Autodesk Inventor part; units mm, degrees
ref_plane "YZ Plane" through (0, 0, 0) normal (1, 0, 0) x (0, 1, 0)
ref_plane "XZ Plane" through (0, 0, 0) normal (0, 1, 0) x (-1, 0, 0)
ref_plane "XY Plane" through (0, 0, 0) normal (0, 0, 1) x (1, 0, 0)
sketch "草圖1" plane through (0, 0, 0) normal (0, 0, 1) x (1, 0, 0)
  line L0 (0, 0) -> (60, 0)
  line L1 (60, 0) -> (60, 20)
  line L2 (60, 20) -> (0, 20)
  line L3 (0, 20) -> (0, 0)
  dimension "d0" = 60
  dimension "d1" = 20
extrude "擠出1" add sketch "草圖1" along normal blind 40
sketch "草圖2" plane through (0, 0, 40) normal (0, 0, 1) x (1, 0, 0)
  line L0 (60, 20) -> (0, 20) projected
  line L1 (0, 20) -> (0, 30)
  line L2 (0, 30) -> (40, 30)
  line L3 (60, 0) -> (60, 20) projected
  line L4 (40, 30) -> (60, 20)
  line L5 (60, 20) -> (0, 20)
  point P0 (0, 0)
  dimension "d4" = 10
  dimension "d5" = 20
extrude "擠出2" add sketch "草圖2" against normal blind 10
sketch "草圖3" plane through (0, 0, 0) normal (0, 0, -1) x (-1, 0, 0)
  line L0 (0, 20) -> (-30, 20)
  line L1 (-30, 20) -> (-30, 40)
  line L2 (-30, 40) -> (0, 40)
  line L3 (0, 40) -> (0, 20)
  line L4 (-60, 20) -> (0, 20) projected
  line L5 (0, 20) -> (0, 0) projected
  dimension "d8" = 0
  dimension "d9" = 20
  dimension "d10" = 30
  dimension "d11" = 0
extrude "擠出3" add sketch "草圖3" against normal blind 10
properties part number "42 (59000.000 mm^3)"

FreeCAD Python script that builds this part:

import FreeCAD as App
import Part
import Sketcher
from FreeCAD import Vector


def add_polygon(sketch, points):
    """Adds a closed chain of lines whose ends are joined by coincident constraints."""
    first, n = sketch.GeometryCount, len(points)
    for a, b in zip(points, points[1:] + points[:1]):
        sketch.addGeometry(Part.LineSegment(App.Vector(*a, 0), App.Vector(*b, 0)), False)
    for i in range(n):
        sketch.addConstraint(Sketcher.Constraint("Coincident", first + i, 2, first + (i + 1) % n, 1))

doc = App.newDocument("Part")
params = doc.addObject("Spreadsheet::Sheet", "Params")
for row, (alias, value) in enumerate([
    ("sketch1_width", "60 mm"),
    ("sketch1_height", "20 mm"),
    ("pad1_length", "40 mm"),
    ("sketch2_height", "10 mm"),
    ("sketch2_width", "60 mm"),
    ("pad2_length", "10 mm"),
    ("sketch3_width", "30 mm"),
    ("sketch3_height", "20 mm"),
    ("pad3_length", "10 mm"),
], start=1):
    params.set(f"A{row}", alias)
    params.set(f"B{row}", "=" + value)
    params.setAlias(f"B{row}", alias)

body = doc.addObject("PartDesign::Body", "Body")

sketch1 = body.newObject("Sketcher::SketchObject", "Sketch")
sketch1.AttachmentSupport = (doc.getObject("XY_Plane"), [""])
sketch1.MapMode = "FlatFace"
add_polygon(sketch1, [(0, 20), (0, 0), (60, 0), (60, 20)])
sketch1.addConstraint([
    Sketcher.Constraint("Vertical", 0),
    Sketcher.Constraint("Horizontal", 1),
    Sketcher.Constraint("Vertical", 2),
    Sketcher.Constraint("Horizontal", 3),
    Sketcher.Constraint("Coincident", 0, 2, -1, 1),
    Sketcher.Constraint("DistanceX", 1, 1, 1, 2, 60.0),
    Sketcher.Constraint("DistanceY", 0, 2, 0, 1, 20.0),
])
sketch1.setExpression("Constraints[9]", "Params.sketch1_width")
sketch1.setExpression("Constraints[10]", "Params.sketch1_height")
pad1 = body.newObject("PartDesign::Pad", "Pad")
pad1.Profile = sketch1
pad1.setExpression("Length", "Params.pad1_length")

sketch2 = body.newObject("Sketcher::SketchObject", "Sketch001")
sketch2.AttachmentSupport = (doc.getObject("XY_Plane"), [""])
sketch2.MapMode = "FlatFace"
sketch2.AttachmentOffset = App.Placement(Vector(0, 0, 40), App.Rotation())
add_polygon(sketch2, [(0, 20), (60, 20), (40, 30), (0, 30)])
sketch2.addConstraint([
    Sketcher.Constraint("Horizontal", 0),
    Sketcher.Constraint("Horizontal", 2),
    Sketcher.Constraint("Vertical", 3),
    Sketcher.Constraint("PointOnObject", 2, 2, -2),
    Sketcher.Constraint("DistanceY", 3, 2, 3, 1, 10.0),
    Sketcher.Constraint("DistanceY", -1, 1, 0, 2, 20.0),
    Sketcher.Constraint("DistanceX", 1, 2, 0, 2, 20.0),
    Sketcher.Constraint("DistanceX", 0, 1, 0, 2, 60.0),
])
sketch2.setExpression("Constraints[8]", "Params.sketch2_height")
sketch2.setExpression("Constraints[11]", "Params.sketch2_width")
pad2 = body.newObject("PartDesign::Pad", "Pad001")
pad2.Profile = sketch2
pad2.setExpression("Length", "Params.pad2_length")
pad2.Reversed = True

sketch3 = body.newObject("Sketcher::SketchObject", "Sketch002")
sketch3.AttachmentSupport = (doc.getObject("XY_Plane"), [""])
sketch3.MapMode = "FlatFace"
add_polygon(sketch3, [(30, 20), (0, 20), (0, 40), (30, 40)])
sketch3.addConstraint([
    Sketcher.Constraint("Horizontal", 0),
    Sketcher.Constraint("Vertical", 1),
    Sketcher.Constraint("Horizontal", 2),
    Sketcher.Constraint("Vertical", 3),
    Sketcher.Constraint("PointOnObject", 0, 2, -2),
    Sketcher.Constraint("DistanceX", 0, 2, 0, 1, 30.0),
    Sketcher.Constraint("DistanceY", 1, 1, 1, 2, 20.0),
    Sketcher.Constraint("DistanceY", -1, 1, 0, 2, 20.0),
])
sketch3.setExpression("Constraints[9]", "Params.sketch3_width")
sketch3.setExpression("Constraints[10]", "Params.sketch3_height")
pad3 = body.newObject("PartDesign::Pad", "Pad002")
pad3.Profile = sketch3
pad3.setExpression("Length", "Params.pad3_length")

doc.recompute()
